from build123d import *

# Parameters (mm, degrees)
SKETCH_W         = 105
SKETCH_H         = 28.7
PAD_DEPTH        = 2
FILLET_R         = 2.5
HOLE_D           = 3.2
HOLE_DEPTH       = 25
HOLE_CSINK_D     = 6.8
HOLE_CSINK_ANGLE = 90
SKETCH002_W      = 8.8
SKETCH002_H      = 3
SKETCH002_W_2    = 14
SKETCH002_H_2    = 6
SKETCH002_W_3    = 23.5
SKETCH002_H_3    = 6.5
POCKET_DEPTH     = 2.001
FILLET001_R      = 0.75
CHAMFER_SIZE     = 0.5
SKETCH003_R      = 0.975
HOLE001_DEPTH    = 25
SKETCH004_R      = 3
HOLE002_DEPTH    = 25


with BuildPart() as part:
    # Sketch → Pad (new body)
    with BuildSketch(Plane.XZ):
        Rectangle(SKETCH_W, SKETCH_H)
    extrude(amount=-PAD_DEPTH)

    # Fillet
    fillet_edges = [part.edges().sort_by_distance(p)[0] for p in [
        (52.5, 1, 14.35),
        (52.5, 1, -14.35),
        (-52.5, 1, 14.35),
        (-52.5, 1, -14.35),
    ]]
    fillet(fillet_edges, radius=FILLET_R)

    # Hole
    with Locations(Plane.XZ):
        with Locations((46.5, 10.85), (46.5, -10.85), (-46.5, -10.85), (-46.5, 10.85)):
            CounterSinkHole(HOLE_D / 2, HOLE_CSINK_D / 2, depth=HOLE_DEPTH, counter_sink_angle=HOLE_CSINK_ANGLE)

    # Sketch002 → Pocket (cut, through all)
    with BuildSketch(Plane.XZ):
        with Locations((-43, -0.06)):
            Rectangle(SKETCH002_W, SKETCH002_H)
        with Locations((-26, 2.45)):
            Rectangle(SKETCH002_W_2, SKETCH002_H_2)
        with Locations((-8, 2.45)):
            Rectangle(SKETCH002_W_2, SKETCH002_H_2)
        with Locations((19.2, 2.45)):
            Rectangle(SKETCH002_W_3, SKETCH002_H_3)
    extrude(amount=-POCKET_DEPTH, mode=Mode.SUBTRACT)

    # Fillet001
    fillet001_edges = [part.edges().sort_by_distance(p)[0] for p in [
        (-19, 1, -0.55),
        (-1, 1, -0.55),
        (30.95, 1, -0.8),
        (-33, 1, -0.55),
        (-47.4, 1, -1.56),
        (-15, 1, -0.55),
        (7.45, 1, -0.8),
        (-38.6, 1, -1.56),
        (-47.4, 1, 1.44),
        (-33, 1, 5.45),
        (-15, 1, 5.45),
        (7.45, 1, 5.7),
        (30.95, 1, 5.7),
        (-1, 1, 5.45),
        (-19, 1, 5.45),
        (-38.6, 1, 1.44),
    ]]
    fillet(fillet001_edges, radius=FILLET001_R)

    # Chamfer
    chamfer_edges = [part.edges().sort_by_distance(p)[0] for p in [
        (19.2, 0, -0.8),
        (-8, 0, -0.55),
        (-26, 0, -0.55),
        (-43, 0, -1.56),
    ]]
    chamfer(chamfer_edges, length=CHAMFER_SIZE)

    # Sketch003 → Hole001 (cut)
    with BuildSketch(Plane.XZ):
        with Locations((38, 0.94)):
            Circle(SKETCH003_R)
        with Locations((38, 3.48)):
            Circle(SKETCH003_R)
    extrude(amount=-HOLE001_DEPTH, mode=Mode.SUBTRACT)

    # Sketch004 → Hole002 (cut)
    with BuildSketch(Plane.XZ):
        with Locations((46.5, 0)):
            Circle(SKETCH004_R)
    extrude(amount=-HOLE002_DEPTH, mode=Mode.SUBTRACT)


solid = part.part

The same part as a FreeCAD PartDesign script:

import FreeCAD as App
import Part
import Sketcher

V = App.Vector
Q = App.Units.Quantity


def edges_at(feature, points):
    """Names of the edges that pass closest to the given points."""
    edges = feature.Shape.Edges
    near = lambda p: min(range(len(edges)), key=lambda i: edges[i].distToShape(Part.Vertex(*p))[0])
    return sorted({f"Edge{near(p) + 1}" for p in points})


def add_polygon(sketch, points):
    """Adds a closed chain of lines whose ends are joined by coincident constraints."""
    first, n = sketch.GeometryCount, len(points)
    for a, b in zip(points, points[1:] + points[:1]):
        sketch.addGeometry(Part.LineSegment(App.Vector(*a, 0), App.Vector(*b, 0)), False)
    for i in range(n):
        sketch.addConstraint(Sketcher.Constraint("Coincident", first + i, 2, first + (i + 1) % n, 1))

doc = App.newDocument("Part")
body = doc.addObject("PartDesign::Body", "Body")

# Sketch on XZ plane
sketch1 = doc.addObject("Sketcher::SketchObject", "Sketch")
body.addObject(sketch1)
sketch1.AttachmentSupport = (doc.XZ_Plane, [""])
sketch1.MapMode = "FlatFace"
add_polygon(sketch1, [(-52, 14), (-52, -14), (52, -14), (52, 14)])  # lines 0-3
sketch1.addConstraint([
    Sketcher.Constraint("Vertical", 0),
    Sketcher.Constraint("Horizontal", 1),
    Sketcher.Constraint("Vertical", 2),
    Sketcher.Constraint("Horizontal", 3),
    Sketcher.Constraint("Symmetric", 0, 2, 2, 2, -1, 1),
    Sketcher.Constraint("DistanceX", 1, 1, 1, 2, Q("105 mm")),
    Sketcher.Constraint("DistanceY", 0, 2, 0, 1, Q("28.7 mm")),
])
pad1 = doc.addObject("PartDesign::Pad", "Pad")
body.addObject(pad1)
pad1.Profile = sketch1
pad1.Length = 2
pad1.Reversed = True
doc.recompute()

fillet = doc.addObject("PartDesign::Fillet", "Fillet")
body.addObject(fillet)
fillet.Base = (pad1, edges_at(pad1, [
    (52.5, 1, 14.35),
    (52.5, 1, -14.35),
    (-52.5, 1, 14.35),
    (-52.5, 1, -14.35),
]))
fillet.Radius = 2.5

# Sketch on XZ plane
sketch2 = doc.addObject("Sketcher::SketchObject", "Sketch001")
body.addObject(sketch2)
sketch2.AttachmentSupport = (doc.XZ_Plane, [""])
sketch2.MapMode = "FlatFace"
sketch2.addGeometry([
    Part.Circle(V(46.5, 10.8, 0), V(0, 0, 1), 1.6),
    Part.Circle(V(46.5, -10.8, 0), V(0, 0, 1), 1.6),
    Part.Circle(V(-46.5, -10.8, 0), V(0, 0, 1), 1.6),
    Part.Circle(V(-46.5, 10.8, 0), V(0, 0, 1), 1.6),
], False)
sketch2.addConstraint([
    Sketcher.Constraint("Equal", 0, 1),
    Sketcher.Constraint("Equal", 1, 2),
    Sketcher.Constraint("Equal", 2, 3),
    Sketcher.Constraint("Symmetric", 0, 3, 2, 3, -1, 1),
    Sketcher.Constraint("Symmetric", 1, 3, 3, 3, -1, 1),
    Sketcher.Constraint("Symmetric", 1, 3, 2, 3, -2),
    Sketcher.Constraint("Diameter", 0, Q("3.2 mm")),
    Sketcher.Constraint("DistanceX", 2, 3, 1, 3, Q("93 mm")),
    Sketcher.Constraint("DistanceY", 1, 3, 0, 3, Q("21.7 mm")),
])
doc.recompute()
hole = doc.addObject("PartDesign::Hole", "Hole")
body.addObject(hole)
hole.Profile = sketch2
hole.ThreadType = "None"
hole.Diameter = 3.2
hole.DepthType = "Dimension"
hole.Depth = 25
hole.DrillPoint = "Flat"
hole.HoleCutType = "Countersink"
hole.HoleCutDiameter = 6.8
hole.HoleCutCountersinkAngle = 90

# Sketch on XZ plane
sketch3 = doc.addObject("Sketcher::SketchObject", "Sketch002")
body.addObject(sketch3)
sketch3.AttachmentSupport = (doc.XZ_Plane, [""])
sketch3.MapMode = "FlatFace"
add_polygon(sketch3, [(-47.4, 1.4), (-47.4, -1.6), (-38.6, -1.6), (-38.6, 1.4)])  # lines 0-3
add_polygon(sketch3, [(-33, 5.5), (-33, -0.6), (-19, -0.6), (-19, 5.5)])  # lines 4-7
add_polygon(sketch3, [(-15, 5.5), (-15, -0.6), (-1, -0.6), (-1, 5.5)])  # lines 8-11
add_polygon(sketch3, [(7.5, 5.7), (7.5, -0.8), (30.9, -0.8), (30.9, 5.7)])  # lines 12-15
sketch3.addConstraint([
    Sketcher.Constraint("Vertical", 0),
    Sketcher.Constraint("Horizontal", 1),
    Sketcher.Constraint("Vertical", 2),
    Sketcher.Constraint("Horizontal", 3),
    Sketcher.Constraint("Vertical", 4),
    Sketcher.Constraint("Horizontal", 5),
    Sketcher.Constraint("Vertical", 6),
    Sketcher.Constraint("Horizontal", 7),
    Sketcher.Constraint("Vertical", 8),
    Sketcher.Constraint("Horizontal", 9),
    Sketcher.Constraint("Vertical", 10),
    Sketcher.Constraint("Horizontal", 11),
    Sketcher.Constraint("Vertical", 12),
    Sketcher.Constraint("Horizontal", 13),
    Sketcher.Constraint("Vertical", 14),
    Sketcher.Constraint("Horizontal", 15),
    Sketcher.Constraint("Horizontal", 5, 2, 8, 2),
    Sketcher.Constraint("Horizontal", 7, 2, 10, 2),
    Sketcher.Constraint("Equal", 7, 9),
    Sketcher.Constraint("DistanceX", 5, 1, 5, 2, Q("14 mm")),
    Sketcher.Constraint("DistanceY", 0, 2, 0, 1, Q("3 mm")),
    Sketcher.Constraint("DistanceY", 4, 2, 4, 1, Q("6 mm")),
    Sketcher.Constraint("DistanceX", 1, 1, 1, 2, Q("8.8 mm")),
    Sketcher.Constraint("DistanceX", 13, 1, 13, 2, Q("23.5 mm")),
    Sketcher.Constraint("DistanceY", 12, 2, 12, 1, Q("6.5 mm")),
    Sketcher.Constraint("DistanceX", 4, 2, -1, 1, Q("33 mm")),
    Sketcher.Constraint("DistanceX", 8, 2, -1, 1, Q("15 mm")),
    Sketcher.Constraint("DistanceX", 0, 2, -1, 1, Q("47.4 mm")),
    Sketcher.Constraint("DistanceY", 12, 2, -1, 1, Q("0.8 mm")),
    Sketcher.Constraint("DistanceY", 0, 2, -1, 1, Q("1.56 mm")),
    Sketcher.Constraint("DistanceY", 4, 2, -1, 1, Q("0.55 mm")),
    Sketcher.Constraint("DistanceX", -1, 1, 12, 2, Q("7.45 mm")),
])
pocket1 = doc.addObject("PartDesign::Pocket", "Pocket")
body.addObject(pocket1)
pocket1.Profile = sketch3
pocket1.Type = "ThroughAll"
doc.recompute()

fillet2 = doc.addObject("PartDesign::Fillet", "Fillet001")
body.addObject(fillet2)
fillet2.Base = (pocket1, edges_at(pocket1, [
    (-19, 1, -0.55),
    (-1, 1, -0.55),
    (30.95, 1, -0.8),
    (-33, 1, -0.55),
    (-47.4, 1, -1.56),
    (-15, 1, -0.55),
    (7.45, 1, -0.8),
    (-38.6, 1, -1.56),
    (-47.4, 1, 1.44),
    (-33, 1, 5.45),
    (-15, 1, 5.45),
    (7.45, 1, 5.7),
    (30.95, 1, 5.7),
    (-1, 1, 5.45),
    (-19, 1, 5.45),
    (-38.6, 1, 1.44),
]))
fillet2.Radius = 0.75
doc.recompute()

chamfer = doc.addObject("PartDesign::Chamfer", "Chamfer")
body.addObject(chamfer)
chamfer.Base = (fillet2, edges_at(fillet2, [
    (19.2, 0, -0.8),
    (-8, 0, -0.55),
    (-26, 0, -0.55),
    (-43, 0, -1.56),
]))
chamfer.Size = 0.5

# Sketch on XZ plane
sketch4 = doc.addObject("Sketcher::SketchObject", "Sketch003")
body.addObject(sketch4)
sketch4.AttachmentSupport = (doc.XZ_Plane, [""])
sketch4.MapMode = "FlatFace"
sketch4.addGeometry([
    Part.Circle(V(38, 0.9, 0), V(0, 0, 1), 1),
    Part.Circle(V(38, 3.5, 0), V(0, 0, 1), 1),
], False)
sketch4.addConstraint([
    Sketcher.Constraint("Equal", 0, 1),
    Sketcher.Constraint("Vertical", 0, 3, 1, 3),
    Sketcher.Constraint("Diameter", 0, Q("1.95 mm")),
    Sketcher.Constraint("DistanceX", -1, 1, 0, 3, Q("38 mm")),
    Sketcher.Constraint("DistanceY", -1, 1, 0, 3, Q("0.94 mm")),
    Sketcher.Constraint("DistanceY", -1, 1, 1, 3, Q("3.48 mm")),
])
pocket2 = doc.addObject("PartDesign::Pocket", "Pocket001")
body.addObject(pocket2)
pocket2.Profile = sketch4
pocket2.Length = 25

# Sketch on XZ plane
sketch5 = doc.addObject("Sketcher::SketchObject", "Sketch004")
body.addObject(sketch5)
sketch5.AttachmentSupport = (doc.XZ_Plane, [""])
sketch5.MapMode = "FlatFace"
sketch5.addGeometry(Part.Circle(V(46.5, 0, 0), V(0, 0, 1), 3), False)
sketch5.addConstraint([
    Sketcher.Constraint("PointOnObject", 0, 3, -1),
    Sketcher.Constraint("Diameter", 0, Q("6 mm")),
    Sketcher.Constraint("DistanceX", -1, 1, 0, 3, Q("46.5 mm")),
])
pocket3 = doc.addObject("PartDesign::Pocket", "Pocket002")
body.addObject(pocket3)
pocket3.Profile = sketch5
pocket3.Length = 25

doc.recompute()
